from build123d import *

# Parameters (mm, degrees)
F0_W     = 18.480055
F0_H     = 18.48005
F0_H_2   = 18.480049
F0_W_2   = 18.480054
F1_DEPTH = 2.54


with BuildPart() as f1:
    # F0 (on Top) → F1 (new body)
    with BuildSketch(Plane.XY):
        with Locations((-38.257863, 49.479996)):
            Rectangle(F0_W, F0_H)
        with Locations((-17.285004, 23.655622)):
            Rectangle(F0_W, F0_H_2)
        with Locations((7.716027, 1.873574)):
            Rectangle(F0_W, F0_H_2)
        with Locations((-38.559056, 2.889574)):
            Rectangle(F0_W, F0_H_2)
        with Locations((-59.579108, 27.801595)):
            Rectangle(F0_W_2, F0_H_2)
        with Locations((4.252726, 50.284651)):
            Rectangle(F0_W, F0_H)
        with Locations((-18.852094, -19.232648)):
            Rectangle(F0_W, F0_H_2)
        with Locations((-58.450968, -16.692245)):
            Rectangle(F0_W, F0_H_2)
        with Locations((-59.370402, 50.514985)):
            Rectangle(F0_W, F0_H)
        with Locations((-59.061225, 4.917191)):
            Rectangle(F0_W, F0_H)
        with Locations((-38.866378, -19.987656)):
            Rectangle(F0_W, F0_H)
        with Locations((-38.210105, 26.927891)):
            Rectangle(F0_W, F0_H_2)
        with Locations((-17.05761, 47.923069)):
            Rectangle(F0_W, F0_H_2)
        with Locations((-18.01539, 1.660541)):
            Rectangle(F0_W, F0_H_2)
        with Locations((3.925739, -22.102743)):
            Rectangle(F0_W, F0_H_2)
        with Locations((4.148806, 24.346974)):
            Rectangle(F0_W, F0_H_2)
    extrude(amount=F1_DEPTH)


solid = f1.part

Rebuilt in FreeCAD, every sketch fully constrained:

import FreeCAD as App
import Part
import Sketcher
from FreeCAD import Vector
Q = App.Units.Quantity


def add_polygon(sketch, points):
    """Adds a closed chain of lines whose ends are joined by coincident constraints."""
    first, n = sketch.GeometryCount, len(points)
    for a, b in zip(points, points[1:] + points[:1]):
        sketch.addGeometry(Part.LineSegment(App.Vector(*a, 0), App.Vector(*b, 0)), False)
    for i in range(n):
        sketch.addConstraint(Sketcher.Constraint("Coincident", first + i, 2, first + (i + 1) % n, 1))

doc = App.newDocument("Part")
body = doc.addObject("PartDesign::Body", "Body")
body.AllowCompound = True

# Sketch on XY plane
sketch1 = body.newObject("Sketcher::SketchObject", "Sketch")
sketch1.AttachmentSupport = (doc.getObject("XY_Plane"), [""])
sketch1.MapMode = "FlatFace"
add_polygon(sketch1, [(-47, 59), (-47, 40), (-29, 40), (-29, 59)])  # lines 0-3
add_polygon(sketch1, [(-27, 33), (-27, 14), (-8, 14), (-8, 33)])  # lines 4-7
add_polygon(sketch1, [(-2, 11), (-2, -7), (17, -7), (17, 11)])  # lines 8-11
add_polygon(sketch1, [(-48, 12), (-48, -6), (-29, -6), (-29, 12)])  # lines 12-15
add_polygon(sketch1, [(-69, 37), (-69, 19), (-50, 19), (-50, 37)])  # lines 16-19
add_polygon(sketch1, [(-5, 60), (-5, 41), (13, 41), (13, 60)])  # lines 20-23
add_polygon(sketch1, [(-28, -10), (-28, -28), (-10, -28), (-10, -10)])  # lines 24-27
add_polygon(sketch1, [(-68, -7), (-68, -26), (-49, -26), (-49, -7)])  # lines 28-31
add_polygon(sketch1, [(-69, 60), (-69, 41), (-50, 41), (-50, 60)])  # lines 32-35
add_polygon(sketch1, [(-68, 14), (-68, -4), (-50, -4), (-50, 14)])  # lines 36-39
add_polygon(sketch1, [(-48, -11), (-48, -29), (-30, -29), (-30, -11)])  # lines 40-43
add_polygon(sketch1, [(-47, 36), (-47, 18), (-29, 18), (-29, 36)])  # lines 44-47
add_polygon(sketch1, [(-26, 57), (-26, 39), (-8, 39), (-8, 57)])  # lines 48-51
add_polygon(sketch1, [(-27, 11), (-27, -8), (-9, -8), (-9, 11)])  # lines 52-55
add_polygon(sketch1, [(-5, -13), (-5, -31), (13, -31), (13, -13)])  # lines 56-59
add_polygon(sketch1, [(-5, 34), (-5, 15), (13, 15), (13, 34)])  # lines 60-63
sketch1.addConstraint([
    Sketcher.Constraint("Vertical", 0),
    Sketcher.Constraint("Horizontal", 1),
    Sketcher.Constraint("Vertical", 2),
    Sketcher.Constraint("Horizontal", 3),
    Sketcher.Constraint("Vertical", 4),
    Sketcher.Constraint("Horizontal", 5),
    Sketcher.Constraint("Vertical", 6),
    Sketcher.Constraint("Horizontal", 7),
    Sketcher.Constraint("Vertical", 8),
    Sketcher.Constraint("Horizontal", 9),
    Sketcher.Constraint("Vertical", 10),
    Sketcher.Constraint("Horizontal", 11),
    Sketcher.Constraint("Vertical", 12),
    Sketcher.Constraint("Horizontal", 13),
    Sketcher.Constraint("Vertical", 14),
    Sketcher.Constraint("Horizontal", 15),
    Sketcher.Constraint("Vertical", 16),
    Sketcher.Constraint("Horizontal", 17),
    Sketcher.Constraint("Vertical", 18),
    Sketcher.Constraint("Horizontal", 19),
    Sketcher.Constraint("Vertical", 20),
    Sketcher.Constraint("Horizontal", 21),
    Sketcher.Constraint("Vertical", 22),
    Sketcher.Constraint("Horizontal", 23),
    Sketcher.Constraint("Vertical", 24),
    Sketcher.Constraint("Horizontal", 25),
    Sketcher.Constraint("Vertical", 26),
    Sketcher.Constraint("Horizontal", 27),
    Sketcher.Constraint("Vertical", 28),
    Sketcher.Constraint("Horizontal", 29),
    Sketcher.Constraint("Vertical", 30),
    Sketcher.Constraint("Horizontal", 31),
    Sketcher.Constraint("Vertical", 32),
    Sketcher.Constraint("Horizontal", 33),
    Sketcher.Constraint("Vertical", 34),
    Sketcher.Constraint("Horizontal", 35),
    Sketcher.Constraint("Vertical", 36),
    Sketcher.Constraint("Horizontal", 37),
    Sketcher.Constraint("Vertical", 38),
    Sketcher.Constraint("Horizontal", 39),
    Sketcher.Constraint("Vertical", 40),
    Sketcher.Constraint("Horizontal", 41),
    Sketcher.Constraint("Vertical", 42),
    Sketcher.Constraint("Horizontal", 43),
    Sketcher.Constraint("Vertical", 44),
    Sketcher.Constraint("Horizontal", 45),
    Sketcher.Constraint("Vertical", 46),
    Sketcher.Constraint("Horizontal", 47),
    Sketcher.Constraint("Vertical", 48),
    Sketcher.Constraint("Horizontal", 49),
    Sketcher.Constraint("Vertical", 50),
    Sketcher.Constraint("Horizontal", 51),
    Sketcher.Constraint("Vertical", 52),
    Sketcher.Constraint("Horizontal", 53),
    Sketcher.Constraint("Vertical", 54),
    Sketcher.Constraint("Horizontal", 55),
    Sketcher.Constraint("Vertical", 56),
    Sketcher.Constraint("Horizontal", 57),
    Sketcher.Constraint("Vertical", 58),
    Sketcher.Constraint("Horizontal", 59),
    Sketcher.Constraint("Vertical", 60),
    Sketcher.Constraint("Horizontal", 61),
    Sketcher.Constraint("Vertical", 62),
    Sketcher.Constraint("Horizontal", 63),
    Sketcher.Constraint("Equal", 3, 5),
    Sketcher.Constraint("Equal", 7, 9),
    Sketcher.Constraint("Equal", 11, 13),
    Sketcher.Constraint("Equal", 15, 17),
    Sketcher.Constraint("Equal", 19, 21),
    Sketcher.Constraint("Equal", 23, 25),
    Sketcher.Constraint("Equal", 27, 29),
    Sketcher.Constraint("Equal", 31, 33),
    Sketcher.Constraint("Equal", 35, 37),
    Sketcher.Constraint("Equal", 39, 41),
    Sketcher.Constraint("Equal", 43, 45),
    Sketcher.Constraint("Equal", 47, 49),
    Sketcher.Constraint("Equal", 51, 53),
    Sketcher.Constraint("Equal", 55, 57),
    Sketcher.Constraint("Equal", 59, 61),
    Sketcher.Constraint("Equal", 2, 4),
    Sketcher.Constraint("Equal", 6, 8),
    Sketcher.Constraint("Equal", 10, 12),
    Sketcher.Constraint("Equal", 14, 16),
    Sketcher.Constraint("Equal", 18, 20),
    Sketcher.Constraint("Equal", 22, 24),
    Sketcher.Constraint("Equal", 26, 28),
    Sketcher.Constraint("Equal", 30, 32),
    Sketcher.Constraint("Equal", 34, 36),
    Sketcher.Constraint("Equal", 38, 40),
    Sketcher.Constraint("Equal", 42, 44),
    Sketcher.Constraint("Equal", 46, 48),
    Sketcher.Constraint("Equal", 50, 52),
    Sketcher.Constraint("Equal", 54, 56),
    Sketcher.Constraint("Equal", 58, 60),
    Sketcher.Constraint("DistanceX", 8, 2, -1, 1, Q("0.06 in")),
    Sketcher.Constraint("DistanceX", 28, 2, -1, 1, Q("2.6649998 in")),
    Sketcher.Constraint("DistanceY", 0, 2, 0, 1, Q("18.48005 mm")),
    Sketcher.Constraint("DistanceY", -1, 1, 10, 2, Q("11.113599 mm")),
    Sketcher.Constraint("DistanceY", -1, 1, 14, 2, Q("12.129599 mm")),
    Sketcher.Constraint("DistanceX", 20, 2, -1, 1, Q("4.987302 mm")),
    Sketcher.Constraint("DistanceY", -1, 1, 62, 2, Q("33.586998 mm")),
    Sketcher.Constraint("DistanceX", 1, 1, 1, 2, Q("18.480055 mm")),
    Sketcher.Constraint("DistanceX", 0, 2, -1, 1, Q("47.49789 mm")),
    Sketcher.Constraint("DistanceY", -1, 1, 0, 2, Q("40.239971 mm")),
    Sketcher.Constraint("DistanceX", 4, 2, -1, 1, Q("26.525032 mm")),
    Sketcher.Constraint("DistanceX", 13, 2, -1, 1, Q("29.319029 mm")),
    Sketcher.Constraint("DistanceY", -1, 1, 16, 2, Q("18.56157 mm")),
    Sketcher.Constraint("DistanceX", 17, 2, -1, 1, Q("50.339081 mm")),
    Sketcher.Constraint("DistanceX", 24, 2, -1, 1, Q("28.092122 mm")),
    Sketcher.Constraint("DistanceY", 28, 2, -1, 1, Q("25.93227 mm")),
    Sketcher.Constraint("DistanceX", 32, 2, -1, 1, Q("68.610429 mm")),
    Sketcher.Constraint("DistanceY", -1, 1, 32, 2, Q("41.27496 mm")),
    Sketcher.Constraint("DistanceY", 40, 2, -1, 1, Q("29.227681 mm")),
    Sketcher.Constraint("DistanceX", 41, 2, -1, 1, Q("29.626351 mm")),
    Sketcher.Constraint("DistanceX", 56, 2, -1, 1, Q("5.314288 mm")),
    Sketcher.Constraint("DistanceY", 58, 2, -1, 1, Q("12.862718 mm")),
    Sketcher.Constraint("DistanceX", 60, 2, -1, 1, Q("5.091221 mm")),
    Sketcher.Constraint("DistanceY", -1, 1, 4, 2, Q("14.415598 mm")),
    Sketcher.Constraint("DistanceY", -1, 1, 20, 2, Q("41.044626 mm")),
    Sketcher.Constraint("DistanceY", 24, 2, -1, 1, Q("28.472673 mm")),
    Sketcher.Constraint("DistanceX", 36, 2, -1, 1, Q("68.301253 mm")),
    Sketcher.Constraint("DistanceY", 36, 2, -1, 1, Q("4.322834 mm")),
    Sketcher.Constraint("DistanceX", 44, 2, -1, 1, Q("47.450133 mm")),
    Sketcher.Constraint("DistanceY", -1, 1, 44, 2, Q("17.687866 mm")),
    Sketcher.Constraint("DistanceX", 48, 2, -1, 1, Q("26.297638 mm")),
    Sketcher.Constraint("DistanceY", -1, 1, 48, 2, Q("38.683045 mm")),
    Sketcher.Constraint("DistanceX", 52, 2, -1, 1, Q("27.255418 mm")),
    Sketcher.Constraint("DistanceY", 52, 2, -1, 1, Q("7.579484 mm")),
])
pad1 = body.newObject("PartDesign::Pad", "Pad")
pad1.Profile = sketch1
pad1.Length = Q("0.1 in")

doc.recompute()
